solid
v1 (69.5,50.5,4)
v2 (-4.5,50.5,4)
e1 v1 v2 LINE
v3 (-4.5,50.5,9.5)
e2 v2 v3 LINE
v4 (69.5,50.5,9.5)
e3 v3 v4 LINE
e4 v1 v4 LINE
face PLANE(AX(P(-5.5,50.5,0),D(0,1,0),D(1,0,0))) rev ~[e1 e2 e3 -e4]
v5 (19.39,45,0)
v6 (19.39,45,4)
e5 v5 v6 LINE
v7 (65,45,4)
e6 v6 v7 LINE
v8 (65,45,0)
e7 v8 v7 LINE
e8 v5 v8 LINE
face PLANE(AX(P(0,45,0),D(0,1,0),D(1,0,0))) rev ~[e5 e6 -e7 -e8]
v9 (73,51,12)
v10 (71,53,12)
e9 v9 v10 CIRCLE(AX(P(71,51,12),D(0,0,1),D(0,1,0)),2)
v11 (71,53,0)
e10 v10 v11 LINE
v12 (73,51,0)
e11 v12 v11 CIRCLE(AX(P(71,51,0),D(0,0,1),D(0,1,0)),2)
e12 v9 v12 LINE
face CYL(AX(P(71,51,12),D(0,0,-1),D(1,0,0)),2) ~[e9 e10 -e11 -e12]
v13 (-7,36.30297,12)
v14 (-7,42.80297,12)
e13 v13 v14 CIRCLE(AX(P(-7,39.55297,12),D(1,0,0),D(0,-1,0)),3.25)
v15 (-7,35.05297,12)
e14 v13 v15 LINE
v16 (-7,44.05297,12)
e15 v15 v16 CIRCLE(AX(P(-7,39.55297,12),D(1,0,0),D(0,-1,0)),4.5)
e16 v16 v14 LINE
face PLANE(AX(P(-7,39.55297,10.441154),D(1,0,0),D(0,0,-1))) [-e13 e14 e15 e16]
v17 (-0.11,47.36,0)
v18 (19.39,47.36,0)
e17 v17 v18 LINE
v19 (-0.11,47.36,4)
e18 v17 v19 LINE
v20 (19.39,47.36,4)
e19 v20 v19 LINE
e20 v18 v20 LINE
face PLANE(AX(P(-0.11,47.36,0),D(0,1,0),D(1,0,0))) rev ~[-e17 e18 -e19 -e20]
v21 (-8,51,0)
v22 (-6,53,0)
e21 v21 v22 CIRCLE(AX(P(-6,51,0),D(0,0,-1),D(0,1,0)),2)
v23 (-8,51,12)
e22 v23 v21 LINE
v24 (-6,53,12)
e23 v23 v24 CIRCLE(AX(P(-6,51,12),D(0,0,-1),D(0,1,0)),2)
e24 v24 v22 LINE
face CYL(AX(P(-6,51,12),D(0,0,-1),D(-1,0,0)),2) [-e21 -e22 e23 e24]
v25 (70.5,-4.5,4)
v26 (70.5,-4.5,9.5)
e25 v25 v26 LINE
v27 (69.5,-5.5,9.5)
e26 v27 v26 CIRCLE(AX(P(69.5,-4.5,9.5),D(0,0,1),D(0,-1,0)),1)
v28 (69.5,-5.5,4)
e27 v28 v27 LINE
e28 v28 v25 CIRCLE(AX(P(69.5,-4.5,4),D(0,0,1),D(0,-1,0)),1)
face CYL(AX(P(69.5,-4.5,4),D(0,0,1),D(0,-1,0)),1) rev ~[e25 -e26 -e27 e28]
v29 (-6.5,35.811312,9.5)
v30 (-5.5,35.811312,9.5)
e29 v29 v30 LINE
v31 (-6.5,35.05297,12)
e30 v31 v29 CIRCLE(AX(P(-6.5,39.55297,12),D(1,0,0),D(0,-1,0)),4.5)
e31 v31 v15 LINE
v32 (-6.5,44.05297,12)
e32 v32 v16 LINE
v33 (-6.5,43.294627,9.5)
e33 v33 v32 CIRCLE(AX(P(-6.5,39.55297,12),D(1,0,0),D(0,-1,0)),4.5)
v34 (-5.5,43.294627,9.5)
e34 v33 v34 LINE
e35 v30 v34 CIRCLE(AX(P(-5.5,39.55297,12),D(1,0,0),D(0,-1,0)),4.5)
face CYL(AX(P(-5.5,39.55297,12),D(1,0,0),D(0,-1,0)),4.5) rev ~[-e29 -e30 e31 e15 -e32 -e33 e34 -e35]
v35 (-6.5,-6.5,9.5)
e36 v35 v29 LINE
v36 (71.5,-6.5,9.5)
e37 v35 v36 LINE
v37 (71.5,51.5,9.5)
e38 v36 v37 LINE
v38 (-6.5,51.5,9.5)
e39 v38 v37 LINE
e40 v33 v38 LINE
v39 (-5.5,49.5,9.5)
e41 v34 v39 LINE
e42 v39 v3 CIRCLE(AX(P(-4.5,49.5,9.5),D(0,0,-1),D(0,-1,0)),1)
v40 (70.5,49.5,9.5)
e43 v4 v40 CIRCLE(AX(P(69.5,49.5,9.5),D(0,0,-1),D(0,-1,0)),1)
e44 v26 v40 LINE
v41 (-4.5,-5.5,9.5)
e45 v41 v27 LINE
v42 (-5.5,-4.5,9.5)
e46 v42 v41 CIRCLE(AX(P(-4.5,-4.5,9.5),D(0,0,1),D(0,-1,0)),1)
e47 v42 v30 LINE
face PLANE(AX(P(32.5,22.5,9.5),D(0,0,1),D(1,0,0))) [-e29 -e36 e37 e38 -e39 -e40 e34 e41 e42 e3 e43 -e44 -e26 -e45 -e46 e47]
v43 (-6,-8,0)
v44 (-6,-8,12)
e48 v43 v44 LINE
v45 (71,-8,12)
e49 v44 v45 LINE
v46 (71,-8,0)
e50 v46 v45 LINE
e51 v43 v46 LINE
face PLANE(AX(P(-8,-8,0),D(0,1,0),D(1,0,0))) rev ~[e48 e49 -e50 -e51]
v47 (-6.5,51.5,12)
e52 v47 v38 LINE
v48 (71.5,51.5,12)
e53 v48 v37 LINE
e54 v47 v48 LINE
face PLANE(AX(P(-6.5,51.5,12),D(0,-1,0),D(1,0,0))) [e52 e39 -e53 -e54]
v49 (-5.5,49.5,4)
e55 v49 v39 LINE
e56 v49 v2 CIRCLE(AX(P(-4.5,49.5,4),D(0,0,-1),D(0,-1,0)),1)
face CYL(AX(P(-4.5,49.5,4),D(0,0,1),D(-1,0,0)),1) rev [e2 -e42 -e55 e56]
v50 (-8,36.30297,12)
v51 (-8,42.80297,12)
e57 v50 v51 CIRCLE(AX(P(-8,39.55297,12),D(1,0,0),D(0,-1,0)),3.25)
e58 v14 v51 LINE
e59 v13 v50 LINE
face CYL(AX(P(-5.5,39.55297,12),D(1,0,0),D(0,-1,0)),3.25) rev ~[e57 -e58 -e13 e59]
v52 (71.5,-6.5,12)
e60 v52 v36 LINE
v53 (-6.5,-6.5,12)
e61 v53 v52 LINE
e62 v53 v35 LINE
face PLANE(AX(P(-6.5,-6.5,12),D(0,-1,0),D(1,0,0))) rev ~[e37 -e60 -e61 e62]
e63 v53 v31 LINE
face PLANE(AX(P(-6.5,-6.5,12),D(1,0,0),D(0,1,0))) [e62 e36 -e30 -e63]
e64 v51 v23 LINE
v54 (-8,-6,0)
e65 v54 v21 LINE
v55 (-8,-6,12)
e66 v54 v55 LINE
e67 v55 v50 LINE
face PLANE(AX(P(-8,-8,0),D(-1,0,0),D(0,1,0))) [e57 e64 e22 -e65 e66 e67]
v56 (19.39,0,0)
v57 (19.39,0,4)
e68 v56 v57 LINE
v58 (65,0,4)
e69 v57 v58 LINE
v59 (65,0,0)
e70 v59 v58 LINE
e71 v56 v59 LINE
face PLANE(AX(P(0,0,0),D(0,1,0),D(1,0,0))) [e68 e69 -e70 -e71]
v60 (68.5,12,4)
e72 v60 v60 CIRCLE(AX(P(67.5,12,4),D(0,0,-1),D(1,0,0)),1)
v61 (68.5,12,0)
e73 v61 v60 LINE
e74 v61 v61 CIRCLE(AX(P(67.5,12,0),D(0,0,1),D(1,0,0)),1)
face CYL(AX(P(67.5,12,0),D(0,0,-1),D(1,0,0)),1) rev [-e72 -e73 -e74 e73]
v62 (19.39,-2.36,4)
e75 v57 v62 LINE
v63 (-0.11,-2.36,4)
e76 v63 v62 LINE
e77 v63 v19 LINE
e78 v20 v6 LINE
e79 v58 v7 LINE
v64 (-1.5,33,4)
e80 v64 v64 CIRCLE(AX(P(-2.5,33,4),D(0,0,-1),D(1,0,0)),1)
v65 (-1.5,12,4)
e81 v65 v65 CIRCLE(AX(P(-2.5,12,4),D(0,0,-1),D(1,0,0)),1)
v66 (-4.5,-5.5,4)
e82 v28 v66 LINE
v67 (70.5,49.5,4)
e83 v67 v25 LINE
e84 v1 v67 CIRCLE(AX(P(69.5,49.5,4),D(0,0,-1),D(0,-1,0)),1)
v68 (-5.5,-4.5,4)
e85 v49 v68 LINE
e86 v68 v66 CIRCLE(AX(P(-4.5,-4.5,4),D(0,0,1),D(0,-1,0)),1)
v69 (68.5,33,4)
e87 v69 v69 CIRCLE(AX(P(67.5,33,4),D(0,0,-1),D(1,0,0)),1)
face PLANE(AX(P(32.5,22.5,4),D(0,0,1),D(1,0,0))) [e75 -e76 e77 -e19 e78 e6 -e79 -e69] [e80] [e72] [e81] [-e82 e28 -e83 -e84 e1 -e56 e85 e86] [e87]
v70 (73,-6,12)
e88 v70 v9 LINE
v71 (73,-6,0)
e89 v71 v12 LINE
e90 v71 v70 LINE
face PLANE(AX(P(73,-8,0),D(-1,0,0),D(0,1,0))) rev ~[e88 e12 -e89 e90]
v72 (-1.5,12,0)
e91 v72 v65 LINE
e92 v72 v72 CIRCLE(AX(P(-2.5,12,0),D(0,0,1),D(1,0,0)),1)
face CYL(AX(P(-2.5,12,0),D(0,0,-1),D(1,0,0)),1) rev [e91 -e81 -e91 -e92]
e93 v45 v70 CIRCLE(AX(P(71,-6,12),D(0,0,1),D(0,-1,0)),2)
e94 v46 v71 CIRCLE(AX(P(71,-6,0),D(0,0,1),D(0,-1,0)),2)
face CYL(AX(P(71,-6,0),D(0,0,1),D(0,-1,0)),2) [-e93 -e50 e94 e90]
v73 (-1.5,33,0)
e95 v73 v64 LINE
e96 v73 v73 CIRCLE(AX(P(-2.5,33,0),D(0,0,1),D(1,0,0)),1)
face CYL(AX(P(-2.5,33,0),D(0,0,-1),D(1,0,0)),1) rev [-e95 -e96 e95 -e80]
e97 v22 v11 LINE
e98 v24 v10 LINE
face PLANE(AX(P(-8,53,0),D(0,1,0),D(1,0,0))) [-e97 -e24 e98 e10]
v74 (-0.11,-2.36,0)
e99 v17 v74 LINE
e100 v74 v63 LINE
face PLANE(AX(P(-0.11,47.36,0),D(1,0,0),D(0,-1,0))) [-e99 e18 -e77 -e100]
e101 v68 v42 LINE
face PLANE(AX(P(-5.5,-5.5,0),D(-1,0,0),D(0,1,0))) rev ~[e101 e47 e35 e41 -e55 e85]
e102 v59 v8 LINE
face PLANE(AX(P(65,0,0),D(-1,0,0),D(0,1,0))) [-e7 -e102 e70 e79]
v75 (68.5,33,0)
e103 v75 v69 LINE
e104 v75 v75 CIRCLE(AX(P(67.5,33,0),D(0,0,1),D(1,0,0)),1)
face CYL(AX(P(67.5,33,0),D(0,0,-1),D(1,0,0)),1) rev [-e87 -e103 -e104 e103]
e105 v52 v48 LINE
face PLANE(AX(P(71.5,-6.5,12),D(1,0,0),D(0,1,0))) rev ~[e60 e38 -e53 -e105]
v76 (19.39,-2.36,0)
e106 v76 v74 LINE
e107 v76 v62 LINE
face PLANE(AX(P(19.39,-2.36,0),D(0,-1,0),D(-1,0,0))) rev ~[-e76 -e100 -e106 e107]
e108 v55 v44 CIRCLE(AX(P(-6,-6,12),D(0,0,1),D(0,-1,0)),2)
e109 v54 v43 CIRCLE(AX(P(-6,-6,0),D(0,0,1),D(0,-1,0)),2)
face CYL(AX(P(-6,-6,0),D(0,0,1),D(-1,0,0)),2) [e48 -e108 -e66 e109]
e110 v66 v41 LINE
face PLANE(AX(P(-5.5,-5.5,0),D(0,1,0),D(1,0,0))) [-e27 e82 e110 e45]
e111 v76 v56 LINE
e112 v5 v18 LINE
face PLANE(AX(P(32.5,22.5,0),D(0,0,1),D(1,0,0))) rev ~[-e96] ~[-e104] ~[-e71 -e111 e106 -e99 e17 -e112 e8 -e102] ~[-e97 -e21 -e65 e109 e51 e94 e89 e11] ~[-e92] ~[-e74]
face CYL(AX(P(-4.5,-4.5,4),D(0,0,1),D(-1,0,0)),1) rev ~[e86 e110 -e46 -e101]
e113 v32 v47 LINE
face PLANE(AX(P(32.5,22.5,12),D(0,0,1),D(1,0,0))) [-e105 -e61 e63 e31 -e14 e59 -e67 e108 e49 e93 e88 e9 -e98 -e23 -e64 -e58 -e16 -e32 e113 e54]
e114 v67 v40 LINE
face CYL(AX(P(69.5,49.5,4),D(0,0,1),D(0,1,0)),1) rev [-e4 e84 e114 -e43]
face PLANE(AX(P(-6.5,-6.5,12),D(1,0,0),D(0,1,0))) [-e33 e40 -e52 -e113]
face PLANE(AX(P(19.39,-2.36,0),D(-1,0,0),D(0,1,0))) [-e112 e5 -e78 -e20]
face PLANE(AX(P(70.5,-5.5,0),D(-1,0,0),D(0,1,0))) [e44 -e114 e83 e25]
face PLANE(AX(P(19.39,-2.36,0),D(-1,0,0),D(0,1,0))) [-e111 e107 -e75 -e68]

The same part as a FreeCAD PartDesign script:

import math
import FreeCAD as App
import Part
import Sketcher
from FreeCAD import Vector


def edges_at(feature, points):
    """Names of the edges that pass closest to the given points."""
    edges = feature.Shape.Edges
    near = lambda p: min(range(len(edges)), key=lambda i: edges[i].distToShape(Part.Vertex(*p))[0])
    return sorted({f"Edge{near(p) + 1}" for p in points})


def add_polygon(sketch, points):
    """Adds a closed chain of lines whose ends are joined by coincident constraints."""
    first, n = sketch.GeometryCount, len(points)
    for a, b in zip(points, points[1:] + points[:1]):
        sketch.addGeometry(Part.LineSegment(App.Vector(*a, 0), App.Vector(*b, 0)), False)
    for i in range(n):
        sketch.addConstraint(Sketcher.Constraint("Coincident", first + i, 2, first + (i + 1) % n, 1))

doc = App.newDocument("Part")
body = doc.addObject("PartDesign::Body", "Body")

# Sketch on XY plane
sketch1 = doc.addObject("Sketcher::SketchObject", "Sketch")
body.addObject(sketch1)
sketch1.AttachmentSupport = (doc.XY_Plane, [""])
sketch1.MapMode = "FlatFace"
add_polygon(sketch1, [(-8, 53), (-8, -8), (73, -8), (73, 53)])  # lines 0-3
add_polygon(sketch1, [(65, 0), (0, 0), (0, 45), (65, 45)])  # lines 4-7
sketch1.addConstraint([
    Sketcher.Constraint("Vertical", 0),
    Sketcher.Constraint("Horizontal", 1),
    Sketcher.Constraint("Vertical", 2),
    Sketcher.Constraint("Horizontal", 3),
    Sketcher.Constraint("Horizontal", 4),
    Sketcher.Constraint("Vertical", 5),
    Sketcher.Constraint("Horizontal", 6),
    Sketcher.Constraint("Vertical", 7),
    Sketcher.Constraint("Coincident", 4, 2, -1, 1),
    Sketcher.Constraint("DistanceX", 1, 1, 1, 2, 81.0),
    Sketcher.Constraint("DistanceX", 4, 2, 4, 1, 65.0),
    Sketcher.Constraint("DistanceY", 0, 2, 0, 1, 61.0),
    Sketcher.Constraint("DistanceY", 5, 1, 5, 2, 45.0),
    Sketcher.Constraint("DistanceX", 0, 2, -1, 1, 8.0),
    Sketcher.Constraint("DistanceY", 0, 2, -1, 1, 8.0),
])
pad1 = doc.addObject("PartDesign::Pad", "Pad")
body.addObject(pad1)
pad1.Profile = sketch1
pad1.Length = 4

# Sketch on XY plane
sketch2 = doc.addObject("Sketcher::SketchObject", "Sketch001")
body.addObject(sketch2)
sketch2.AttachmentSupport = (doc.XY_Plane, [""])
sketch2.MapMode = "FlatFace"
sketch2.addGeometry(Part.Circle(Vector(-2.5, 33, 0), Vector(0, 0, 1), 1), False)  # 0
sketch2.addGeometry(Part.Circle(Vector(-2.5, 12, 0), Vector(0, 0, 1), 1), False)  # 1
sketch2.addGeometry(Part.Circle(Vector(67.5, 33, 0), Vector(0, 0, 1), 1), False)  # 2
sketch2.addGeometry(Part.Circle(Vector(67.5, 12, 0), Vector(0, 0, 1), 1), False)  # 3
add_polygon(sketch2, [(19.4, 47.4), (-0.1, 47.4), (-0.1, -2.4), (19.4, -2.4)])  # lines 4-7
sketch2.addConstraint([
    Sketcher.Constraint("Horizontal", 4),
    Sketcher.Constraint("Vertical", 5),
    Sketcher.Constraint("Horizontal", 6),
    Sketcher.Constraint("Vertical", 7),
    Sketcher.Constraint("Equal", 0, 1),
    Sketcher.Constraint("Equal", 1, 2),
    Sketcher.Constraint("Equal", 2, 3),
    Sketcher.Constraint("Horizontal", 0, 3, 2, 3),
    Sketcher.Constraint("Horizontal", 1, 3, 3, 3),
    Sketcher.Constraint("Vertical", 0, 3, 1, 3),
    Sketcher.Constraint("Vertical", 2, 3, 3, 3),
    Sketcher.Constraint("Diameter", 0, 2.0),
    Sketcher.Constraint("DistanceX", 4, 2, 4, 1, 19.5),
    Sketcher.Constraint("DistanceY", -1, 1, 0, 3, 33.0),
    Sketcher.Constraint("DistanceY", -1, 1, 1, 3, 12.0),
    Sketcher.Constraint("DistanceX", 0, 3, 2, 3, 70.0),
    Sketcher.Constraint("DistanceY", 5, 2, 5, 1, 49.72),
    Sketcher.Constraint("DistanceX", 0, 3, -1, 1, 2.5),
    Sketcher.Constraint("DistanceX", 4, 2, -1, 1, 0.11),
    Sketcher.Constraint("DistanceY", -1, 1, 4, 2, 47.36),
])
pocket1 = doc.addObject("PartDesign::Pocket", "Pocket")
body.addObject(pocket1)
pocket1.Profile = sketch2
pocket1.Length = 13
pocket1.Reversed = True

# Sketch on XY plane
sketch3 = doc.addObject("Sketcher::SketchObject", "Sketch002")
body.addObject(sketch3)
sketch3.AttachmentSupport = (doc.XY_Plane, [""])
sketch3.MapMode = "FlatFace"
add_polygon(sketch3, [(-8, 53), (-8, -8), (73, -8), (73, 53)])  # lines 0-3
add_polygon(sketch3, [(70, -6), (-6, -6), (-6, 50), (70, 50)])  # lines 4-7
sketch3.addConstraint([
    Sketcher.Constraint("Vertical", 0),
    Sketcher.Constraint("Horizontal", 1),
    Sketcher.Constraint("Vertical", 2),
    Sketcher.Constraint("Horizontal", 3),
    Sketcher.Constraint("Horizontal", 4),
    Sketcher.Constraint("Vertical", 5),
    Sketcher.Constraint("Horizontal", 6),
    Sketcher.Constraint("Vertical", 7),
    Sketcher.Constraint("DistanceX", 1, 1, 1, 2, 81.0),
    Sketcher.Constraint("DistanceX", 4, 2, 4, 1, 76.0),
    Sketcher.Constraint("DistanceY", 0, 2, 0, 1, 61.0),
    Sketcher.Constraint("DistanceY", 5, 1, 5, 2, 56.0),
    Sketcher.Constraint("DistanceX", 0, 2, -1, 1, 8.0),
    Sketcher.Constraint("DistanceY", 0, 2, -1, 1, 8.0),
    Sketcher.Constraint("DistanceX", 4, 2, -1, 1, 5.5),
    Sketcher.Constraint("DistanceY", 4, 2, -1, 1, 5.5),
])
pad2 = doc.addObject("PartDesign::Pad", "Pad001")
body.addObject(pad2)
pad2.Profile = sketch3
pad2.Length = 12

# Sketch on YZ plane
sketch4 = doc.addObject("Sketcher::SketchObject", "Sketch003")
body.addObject(sketch4)
sketch4.AttachmentSupport = (doc.YZ_Plane, [""])
sketch4.MapMode = "FlatFace"
sketch4.AttachmentOffset = App.Placement(Vector(0, 0, -5.5), App.Rotation())
sketch4.addGeometry([
    Part.LineSegment(Vector(42.8, 12, 0), Vector(36.3, 12, 0)),
    Part.ArcOfCircle(Part.Circle(Vector(39.6, 12, 0), Vector(0, 0, 1), 3.2), math.radians(180), math.radians(360)),
], False)
sketch4.addConstraint([
    Sketcher.Constraint("Coincident", 0, 1, 1, 2),
    Sketcher.Constraint("Coincident", 1, 1, 0, 2),
    Sketcher.Constraint("Horizontal", 0),
    Sketcher.Constraint("Horizontal", 1, 3, 0, 1),
    Sketcher.Constraint("Radius", 1, 3.25),
    Sketcher.Constraint("DistanceY", -1, 1, 1, 3, 12.0),
    Sketcher.Constraint("DistanceX", -1, 1, 1, 3, 39.55297),
])
pocket2 = doc.addObject("PartDesign::Pocket", "Pocket001")
body.addObject(pocket2)
pocket2.Profile = sketch4
pocket2.Length = 11.5

# Sketch on YZ plane
sketch5 = doc.addObject("Sketcher::SketchObject", "Sketch004")
body.addObject(sketch5)
sketch5.AttachmentSupport = (doc.YZ_Plane, [""])
sketch5.MapMode = "FlatFace"
sketch5.AttachmentOffset = App.Placement(Vector(0, 0, -5.5), App.Rotation())
sketch5.addGeometry([
    Part.LineSegment(Vector(44.1, 12, 0), Vector(35.1, 12, 0)),
    Part.ArcOfCircle(Part.Circle(Vector(39.6, 12, 0), Vector(0, 0, 1), 4.5), math.radians(180), math.radians(360)),
], False)
sketch5.addConstraint([
    Sketcher.Constraint("Coincident", 0, 1, 1, 2),
    Sketcher.Constraint("Coincident", 1, 1, 0, 2),
    Sketcher.Constraint("Horizontal", 0),
    Sketcher.Constraint("Horizontal", 1, 3, 0, 1),
    Sketcher.Constraint("Radius", 1, 4.5),
    Sketcher.Constraint("DistanceY", -1, 1, 1, 3, 12.0),
    Sketcher.Constraint("DistanceX", -1, 1, 1, 3, 39.55297),
])
pocket3 = doc.addObject("PartDesign::Pocket", "Pocket002")
body.addObject(pocket3)
pocket3.Profile = sketch5
pocket3.Length = 1.5

# Sketch on XY plane
sketch6 = doc.addObject("Sketcher::SketchObject", "Sketch005")
body.addObject(sketch6)
sketch6.AttachmentSupport = (doc.XY_Plane, [""])
sketch6.MapMode = "FlatFace"
sketch6.AttachmentOffset = App.Placement(Vector(0, 0, 12), App.Rotation())
add_polygon(sketch6, [(-6, 52), (-6, -6), (72, -6), (72, 52)])  # lines 0-3
add_polygon(sketch6, [(70, -6), (-6, -6), (-6, 50), (70, 50)])  # lines 4-7
sketch6.addConstraint([
    Sketcher.Constraint("Vertical", 0),
    Sketcher.Constraint("Horizontal", 1),
    Sketcher.Constraint("Vertical", 2),
    Sketcher.Constraint("Horizontal", 3),
    Sketcher.Constraint("Horizontal", 4),
    Sketcher.Constraint("Vertical", 5),
    Sketcher.Constraint("Horizontal", 6),
    Sketcher.Constraint("Vertical", 7),
    Sketcher.Constraint("DistanceX", 1, 1, 1, 2, 78.0),
    Sketcher.Constraint("DistanceX", 4, 2, 4, 1, 76.0),
    Sketcher.Constraint("DistanceY", 0, 2, 0, 1, 58.0),
    Sketcher.Constraint("DistanceY", 5, 1, 5, 2, 56.0),
    Sketcher.Constraint("DistanceX", 0, 2, 4, 2, 1.0),
    Sketcher.Constraint("DistanceY", 0, 2, 4, 2, 1.0),
    Sketcher.Constraint("DistanceX", 0, 2, -1, 1, 6.5),
    Sketcher.Constraint("DistanceY", 0, 2, -1, 1, 6.5),
])
pocket4 = doc.addObject("PartDesign::Pocket", "Pocket003")
body.addObject(pocket4)
pocket4.Profile = sketch6
pocket4.Length = 2.5
doc.recompute()

fillet = doc.addObject("PartDesign::Fillet", "Fillet")
body.addObject(fillet)
fillet.Base = (pocket4, edges_at(pocket4, [
    (-5.5, 50.5, 6.75),
    (70.5, 50.5, 6.75),
    (70.5, -5.5, 6.75),
    (-5.5, -5.5, 6.75),
]))
fillet.Radius = 1
doc.recompute()

fillet2 = doc.addObject("PartDesign::Fillet", "Fillet001")
body.addObject(fillet2)
fillet2.Base = (fillet, edges_at(fillet, [
    (-8, 53, 6),
    (73, 53, 6),
    (73, -8, 6),
    (-8, -8, 6),
]))
fillet2.Radius = 2

doc.recompute()
